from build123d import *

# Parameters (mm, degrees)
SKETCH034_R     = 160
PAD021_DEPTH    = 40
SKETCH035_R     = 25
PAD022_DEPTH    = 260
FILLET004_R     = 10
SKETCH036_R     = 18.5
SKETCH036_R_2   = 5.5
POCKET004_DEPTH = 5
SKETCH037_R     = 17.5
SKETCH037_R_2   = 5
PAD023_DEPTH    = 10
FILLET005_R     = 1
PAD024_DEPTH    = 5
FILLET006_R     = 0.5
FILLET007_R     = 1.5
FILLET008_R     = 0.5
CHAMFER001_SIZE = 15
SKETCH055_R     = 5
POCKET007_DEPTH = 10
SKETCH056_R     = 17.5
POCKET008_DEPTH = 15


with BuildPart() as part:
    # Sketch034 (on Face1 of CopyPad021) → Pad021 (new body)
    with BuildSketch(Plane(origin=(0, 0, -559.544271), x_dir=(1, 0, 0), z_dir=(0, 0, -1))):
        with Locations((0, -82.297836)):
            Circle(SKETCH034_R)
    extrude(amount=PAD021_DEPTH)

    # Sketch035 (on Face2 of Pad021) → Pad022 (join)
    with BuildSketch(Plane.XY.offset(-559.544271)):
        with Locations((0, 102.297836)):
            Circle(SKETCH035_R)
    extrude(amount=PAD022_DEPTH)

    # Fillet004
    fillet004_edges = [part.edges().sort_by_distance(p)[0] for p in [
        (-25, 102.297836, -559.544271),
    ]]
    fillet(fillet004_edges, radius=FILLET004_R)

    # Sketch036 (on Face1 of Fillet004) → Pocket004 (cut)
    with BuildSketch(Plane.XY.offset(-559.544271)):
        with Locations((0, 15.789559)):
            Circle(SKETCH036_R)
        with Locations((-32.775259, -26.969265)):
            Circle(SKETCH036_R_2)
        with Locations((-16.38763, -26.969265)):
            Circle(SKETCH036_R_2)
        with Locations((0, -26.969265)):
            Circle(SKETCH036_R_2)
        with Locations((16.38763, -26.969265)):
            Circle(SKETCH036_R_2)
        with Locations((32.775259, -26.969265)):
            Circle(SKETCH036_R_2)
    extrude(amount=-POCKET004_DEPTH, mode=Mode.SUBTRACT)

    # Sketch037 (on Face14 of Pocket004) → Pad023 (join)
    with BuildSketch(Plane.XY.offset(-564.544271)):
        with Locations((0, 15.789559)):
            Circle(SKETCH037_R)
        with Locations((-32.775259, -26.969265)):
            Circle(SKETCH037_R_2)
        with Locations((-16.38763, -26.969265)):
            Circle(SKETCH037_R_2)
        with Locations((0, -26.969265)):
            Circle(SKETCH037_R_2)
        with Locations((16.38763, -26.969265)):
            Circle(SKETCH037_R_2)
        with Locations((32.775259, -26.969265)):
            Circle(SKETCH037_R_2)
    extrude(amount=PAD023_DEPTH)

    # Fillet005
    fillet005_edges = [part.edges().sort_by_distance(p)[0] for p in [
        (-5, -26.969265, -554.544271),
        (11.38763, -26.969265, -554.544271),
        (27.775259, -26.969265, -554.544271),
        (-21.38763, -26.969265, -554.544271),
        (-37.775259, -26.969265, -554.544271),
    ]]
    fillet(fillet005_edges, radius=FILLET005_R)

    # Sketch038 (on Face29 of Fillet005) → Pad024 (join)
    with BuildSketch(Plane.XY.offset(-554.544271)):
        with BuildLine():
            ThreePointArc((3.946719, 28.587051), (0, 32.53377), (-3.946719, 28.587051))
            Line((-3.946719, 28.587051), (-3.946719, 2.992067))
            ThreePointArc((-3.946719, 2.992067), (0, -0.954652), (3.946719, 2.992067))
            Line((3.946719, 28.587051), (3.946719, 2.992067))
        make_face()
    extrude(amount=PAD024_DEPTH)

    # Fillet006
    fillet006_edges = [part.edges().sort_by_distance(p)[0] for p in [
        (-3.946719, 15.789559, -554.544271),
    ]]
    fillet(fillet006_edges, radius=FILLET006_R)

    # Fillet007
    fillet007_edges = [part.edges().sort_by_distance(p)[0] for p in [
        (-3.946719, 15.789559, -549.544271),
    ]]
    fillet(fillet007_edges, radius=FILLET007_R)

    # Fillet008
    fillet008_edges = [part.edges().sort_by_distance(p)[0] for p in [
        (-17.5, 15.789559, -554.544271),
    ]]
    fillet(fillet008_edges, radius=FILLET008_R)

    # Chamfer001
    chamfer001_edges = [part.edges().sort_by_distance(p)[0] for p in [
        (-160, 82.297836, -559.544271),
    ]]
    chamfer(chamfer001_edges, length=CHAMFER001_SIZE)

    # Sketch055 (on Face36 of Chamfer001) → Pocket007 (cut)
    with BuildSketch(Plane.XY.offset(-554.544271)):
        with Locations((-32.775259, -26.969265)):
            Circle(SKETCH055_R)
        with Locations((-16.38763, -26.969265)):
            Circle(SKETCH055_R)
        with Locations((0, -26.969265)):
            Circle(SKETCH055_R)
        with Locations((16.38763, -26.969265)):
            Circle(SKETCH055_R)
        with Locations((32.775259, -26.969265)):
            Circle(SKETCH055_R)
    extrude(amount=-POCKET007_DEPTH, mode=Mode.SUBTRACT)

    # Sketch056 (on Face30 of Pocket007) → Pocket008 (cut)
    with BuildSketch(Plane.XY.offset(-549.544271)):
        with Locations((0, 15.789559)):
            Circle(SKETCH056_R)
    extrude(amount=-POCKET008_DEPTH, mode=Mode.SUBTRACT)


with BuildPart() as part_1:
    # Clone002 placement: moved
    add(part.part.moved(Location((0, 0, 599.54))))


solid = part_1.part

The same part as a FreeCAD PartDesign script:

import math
import FreeCAD as App
import Part
import Sketcher


def edges_at(feature, points):
    """Names of the edges that pass closest to the given points."""
    edges = feature.Shape.Edges
    near = lambda p: min(range(len(edges)), key=lambda i: edges[i].distToShape(Part.Vertex(*p))[0])
    return sorted({f"Edge{near(p) + 1}" for p in points})

doc = App.newDocument("Part")
params = doc.addObject("Spreadsheet::Sheet", "Params")
for row, (alias, value) in enumerate([
    ("sketch1_diameter", "320 mm"),
    ("pad1_length", "40 mm"),
    ("sketch2_diameter", "50 mm"),
    ("pad2_length", "260 mm"),
    ("fillet_radius", "10 mm"),
    ("sketch3_diameter", "37 mm"),
    ("sketch3_diameter2", "11 mm"),
    ("pocket1_length", "5 mm"),
    ("sketch4_diameter", "35 mm"),
    ("sketch4_diameter2", "10 mm"),
    ("pad3_length", "10 mm"),
    ("fillet2_radius", "1 mm"),
    ("pad4_length", "5 mm"),
    ("fillet3_radius", "0.5 mm"),
    ("fillet4_radius", "1.5 mm"),
    ("fillet5_radius", "0.5 mm"),
    ("chamfer_size", "15 mm"),
    ("sketch6_diameter", "10 mm"),
    ("pocket2_length", "10 mm"),
    ("sketch7_diameter", "35 mm"),
    ("pocket3_length", "15 mm"),
], start=1):
    params.set(f"A{row}", alias)
    params.set(f"B{row}", "=" + value)
    params.setAlias(f"B{row}", alias)

body = doc.addObject("PartDesign::Body", "Body")

# Sketch on XY plane
sketch1 = body.newObject("Sketcher::SketchObject", "Sketch")
sketch1.AttachmentSupport = (doc.getObject("XY_Plane"), [""])
sketch1.MapMode = "FlatFace"
sketch1.AttachmentOffset = App.Placement(App.Vector(0, 0, -559.544271), App.Rotation())
sketch1.addGeometry(Part.Circle(App.Vector(0, 82, 0), App.Vector(0, 0, 1), 160), False)
sketch1.addConstraint([
    Sketcher.Constraint("PointOnObject", 0, 3, -2),
    Sketcher.Constraint("Diameter", 0, 320.0),
    Sketcher.Constraint("DistanceY", -1, 1, 0, 3, 82.297836),
])
sketch1.setExpression("Constraints[1]", "Params.sketch1_diameter")
pad1 = body.newObject("PartDesign::Pad", "Pad")
pad1.Profile = sketch1
pad1.setExpression("Length", "Params.pad1_length")
pad1.Reversed = True

# Sketch on XY plane
sketch2 = body.newObject("Sketcher::SketchObject", "Sketch001")
sketch2.AttachmentSupport = (doc.getObject("XY_Plane"), [""])
sketch2.MapMode = "FlatFace"
sketch2.AttachmentOffset = App.Placement(App.Vector(0, 0, -559.544271), App.Rotation())
sketch2.addGeometry(Part.Circle(App.Vector(0, 102, 0), App.Vector(0, 0, 1), 25), False)
sketch2.addConstraint([
    Sketcher.Constraint("PointOnObject", 0, 3, -2),
    Sketcher.Constraint("Diameter", 0, 50.0),
    Sketcher.Constraint("DistanceY", -1, 1, 0, 3, 102.297836),
])
sketch2.setExpression("Constraints[1]", "Params.sketch2_diameter")
pad2 = body.newObject("PartDesign::Pad", "Pad001")
pad2.Profile = sketch2
pad2.setExpression("Length", "Params.pad2_length")
doc.recompute()

fillet = body.newObject("PartDesign::Fillet", "Fillet")
fillet.Base = (pad2, edges_at(pad2, [(-25, 102.298, -559.544)]))
fillet.setExpression("Radius", "Params.fillet_radius")

# Sketch on XY plane
sketch3 = body.newObject("Sketcher::SketchObject", "Sketch002")
sketch3.AttachmentSupport = (doc.getObject("XY_Plane"), [""])
sketch3.MapMode = "FlatFace"
sketch3.AttachmentOffset = App.Placement(App.Vector(0, 0, -559.544271), App.Rotation())
sketch3.addGeometry([
    Part.Circle(App.Vector(0, 16, 0), App.Vector(0, 0, 1), 18),  # 0
    Part.Circle(App.Vector(-33, -27, 0), App.Vector(0, 0, 1), 6),  # 1
    Part.Circle(App.Vector(-16, -27, 0), App.Vector(0, 0, 1), 6),  # 2
    Part.Circle(App.Vector(0, -27, 0), App.Vector(0, 0, 1), 6),  # 3
    Part.Circle(App.Vector(16, -27, 0), App.Vector(0, 0, 1), 6),  # 4
    Part.Circle(App.Vector(33, -27, 0), App.Vector(0, 0, 1), 6),  # 5
], False)
sketch3.addConstraint([
    Sketcher.Constraint("Equal", 1, 2),
    Sketcher.Constraint("Equal", 2, 3),
    Sketcher.Constraint("Equal", 3, 4),
    Sketcher.Constraint("Equal", 4, 5),
    Sketcher.Constraint("Symmetric", 2, 3, 4, 3, -2),
    Sketcher.Constraint("Symmetric", 1, 3, 5, 3, -2),
    Sketcher.Constraint("PointOnObject", 0, 3, -2),
    Sketcher.Constraint("PointOnObject", 3, 3, -2),
    Sketcher.Constraint("Horizontal", 1, 3, 2, 3),
    Sketcher.Constraint("Horizontal", 2, 3, 3, 3),
    Sketcher.Constraint("Diameter", 0, 37.0),
    Sketcher.Constraint("Diameter", 1, 11.0),
    Sketcher.Constraint("DistanceY", -1, 1, 0, 3, 15.789559),
    Sketcher.Constraint("DistanceX", 1, 3, -1, 1, 32.775259),
    Sketcher.Constraint("DistanceX", 2, 3, -1, 1, 16.38763),
    Sketcher.Constraint("DistanceY", 1, 3, -1, 1, 26.969265),
])
sketch3.setExpression("Constraints[10]", "Params.sketch3_diameter")
sketch3.setExpression("Constraints[11]", "Params.sketch3_diameter2")
pocket1 = body.newObject("PartDesign::Pocket", "Pocket")
pocket1.Profile = sketch3
pocket1.setExpression("Length", "Params.pocket1_length")

# Sketch on XY plane
sketch4 = body.newObject("Sketcher::SketchObject", "Sketch003")
sketch4.AttachmentSupport = (doc.getObject("XY_Plane"), [""])
sketch4.MapMode = "FlatFace"
sketch4.AttachmentOffset = App.Placement(App.Vector(0, 0, -564.544271), App.Rotation())
sketch4.addGeometry([
    Part.Circle(App.Vector(0, 16, 0), App.Vector(0, 0, 1), 18),  # 0
    Part.Circle(App.Vector(-33, -27, 0), App.Vector(0, 0, 1), 5),  # 1
    Part.Circle(App.Vector(-16, -27, 0), App.Vector(0, 0, 1), 5),  # 2
    Part.Circle(App.Vector(0, -27, 0), App.Vector(0, 0, 1), 5),  # 3
    Part.Circle(App.Vector(16, -27, 0), App.Vector(0, 0, 1), 5),  # 4
    Part.Circle(App.Vector(33, -27, 0), App.Vector(0, 0, 1), 5),  # 5
], False)
sketch4.addConstraint([
    Sketcher.Constraint("Equal", 1, 2),
    Sketcher.Constraint("Equal", 2, 3),
    Sketcher.Constraint("Equal", 3, 4),
    Sketcher.Constraint("Equal", 4, 5),
    Sketcher.Constraint("Symmetric", 2, 3, 4, 3, -2),
    Sketcher.Constraint("Symmetric", 1, 3, 5, 3, -2),
    Sketcher.Constraint("PointOnObject", 0, 3, -2),
    Sketcher.Constraint("PointOnObject", 3, 3, -2),
    Sketcher.Constraint("Horizontal", 1, 3, 2, 3),
    Sketcher.Constraint("Horizontal", 2, 3, 3, 3),
    Sketcher.Constraint("Diameter", 0, 35.0),
    Sketcher.Constraint("Diameter", 1, 10.0),
    Sketcher.Constraint("DistanceY", -1, 1, 0, 3, 15.789559),
    Sketcher.Constraint("DistanceX", 1, 3, -1, 1, 32.775259),
    Sketcher.Constraint("DistanceX", 2, 3, -1, 1, 16.38763),
    Sketcher.Constraint("DistanceY", 1, 3, -1, 1, 26.969265),
])
sketch4.setExpression("Constraints[10]", "Params.sketch4_diameter")
sketch4.setExpression("Constraints[11]", "Params.sketch4_diameter2")
pad3 = body.newObject("PartDesign::Pad", "Pad002")
pad3.Profile = sketch4
pad3.setExpression("Length", "Params.pad3_length")
doc.recompute()

fillet2 = body.newObject("PartDesign::Fillet", "Fillet001")
fillet2.Base = (pad3, edges_at(pad3, [
    (-5, -26.969, -554.544),
    (11.388, -26.969, -554.544),
    (27.775, -26.969, -554.544),
    (-21.388, -26.969, -554.544),
    (-37.775, -26.969, -554.544),
]))
fillet2.setExpression("Radius", "Params.fillet2_radius")

# Sketch on XY plane
sketch5 = body.newObject("Sketcher::SketchObject", "Sketch004")
sketch5.AttachmentSupport = (doc.getObject("XY_Plane"), [""])
sketch5.MapMode = "FlatFace"
sketch5.AttachmentOffset = App.Placement(App.Vector(0, 0, -554.544271), App.Rotation())
sketch5.addGeometry([
    Part.ArcOfCircle(Part.Circle(App.Vector(0, 28.6, 0), App.Vector(0, 0, 1), 3.9), math.radians(0), math.radians(180)),
    Part.LineSegment(App.Vector(-3.9, 28.6, 0), App.Vector(-3.9, 3, 0)),
    Part.ArcOfCircle(Part.Circle(App.Vector(0, 3, 0), App.Vector(0, 0, 1), 3.9), math.radians(180), math.radians(360)),
    Part.LineSegment(App.Vector(3.9, 3, 0), App.Vector(3.9, 28.6, 0)),
], False)
sketch5.addConstraint([
    Sketcher.Constraint("Tangent", 0, 2, 1, 1),
    Sketcher.Constraint("Tangent", 1, 2, 2, 1),
    Sketcher.Constraint("Tangent", 2, 2, 3, 1),
    Sketcher.Constraint("Tangent", 3, 2, 0, 1),
    Sketcher.Constraint("Vertical", 1),
    Sketcher.Constraint("Vertical", 3),
    Sketcher.Constraint("PointOnObject", 0, 3, -2),
    Sketcher.Constraint("Radius", 0, 3.946719),
    Sketcher.Constraint("DistanceY", 1, 2, 1, 1, 25.594984),
    Sketcher.Constraint("DistanceY", -1, 1, 0, 3, 28.587051),
])
pad4 = body.newObject("PartDesign::Pad", "Pad003")
pad4.Profile = sketch5
pad4.setExpression("Length", "Params.pad4_length")
doc.recompute()

fillet3 = body.newObject("PartDesign::Fillet", "Fillet002")
fillet3.Base = (pad4, edges_at(pad4, [(-3.947, 15.79, -554.544)]))
fillet3.setExpression("Radius", "Params.fillet3_radius")
doc.recompute()

fillet4 = body.newObject("PartDesign::Fillet", "Fillet003")
fillet4.Base = (fillet3, edges_at(fillet3, [(-3.947, 15.79, -549.544)]))
fillet4.setExpression("Radius", "Params.fillet4_radius")
doc.recompute()

fillet5 = body.newObject("PartDesign::Fillet", "Fillet004")
fillet5.Base = (fillet4, edges_at(fillet4, [(-17.5, 15.79, -554.544)]))
fillet5.setExpression("Radius", "Params.fillet5_radius")
doc.recompute()

chamfer = body.newObject("PartDesign::Chamfer", "Chamfer")
chamfer.Base = (fillet5, edges_at(fillet5, [(-160, 82.298, -559.544)]))
chamfer.setExpression("Size", "Params.chamfer_size")

# Sketch on XY plane
sketch6 = body.newObject("Sketcher::SketchObject", "Sketch005")
sketch6.AttachmentSupport = (doc.getObject("XY_Plane"), [""])
sketch6.MapMode = "FlatFace"
sketch6.AttachmentOffset = App.Placement(App.Vector(0, 0, -554.544271), App.Rotation())
sketch6.addGeometry([
    Part.Circle(App.Vector(-33, -27, 0), App.Vector(0, 0, 1), 5),  # 0
    Part.Circle(App.Vector(-16, -27, 0), App.Vector(0, 0, 1), 5),  # 1
    Part.Circle(App.Vector(0, -27, 0), App.Vector(0, 0, 1), 5),  # 2
    Part.Circle(App.Vector(16, -27, 0), App.Vector(0, 0, 1), 5),  # 3
    Part.Circle(App.Vector(33, -27, 0), App.Vector(0, 0, 1), 5),  # 4
], False)
sketch6.addConstraint([
    Sketcher.Constraint("Equal", 0, 1),
    Sketcher.Constraint("Equal", 1, 2),
    Sketcher.Constraint("Equal", 2, 3),
    Sketcher.Constraint("Equal", 3, 4),
    Sketcher.Constraint("Symmetric", 1, 3, 3, 3, -2),
    Sketcher.Constraint("Symmetric", 0, 3, 4, 3, -2),
    Sketcher.Constraint("PointOnObject", 2, 3, -2),
    Sketcher.Constraint("Horizontal", 0, 3, 1, 3),
    Sketcher.Constraint("Horizontal", 1, 3, 2, 3),
    Sketcher.Constraint("Diameter", 0, 10.0),
    Sketcher.Constraint("DistanceX", 0, 3, -1, 1, 32.775259),
    Sketcher.Constraint("DistanceX", 1, 3, -1, 1, 16.38763),
    Sketcher.Constraint("DistanceY", 0, 3, -1, 1, 26.969265),
])
sketch6.setExpression("Constraints[9]", "Params.sketch6_diameter")
pocket2 = body.newObject("PartDesign::Pocket", "Pocket001")
pocket2.Profile = sketch6
pocket2.setExpression("Length", "Params.pocket2_length")

# Sketch on XY plane
sketch7 = body.newObject("Sketcher::SketchObject", "Sketch006")
sketch7.AttachmentSupport = (doc.getObject("XY_Plane"), [""])
sketch7.MapMode = "FlatFace"
sketch7.AttachmentOffset = App.Placement(App.Vector(0, 0, -549.544271), App.Rotation())
sketch7.addGeometry(Part.Circle(App.Vector(0, 16, 0), App.Vector(0, 0, 1), 18), False)
sketch7.addConstraint([
    Sketcher.Constraint("PointOnObject", 0, 3, -2),
    Sketcher.Constraint("Diameter", 0, 35.0),
    Sketcher.Constraint("DistanceY", -1, 1, 0, 3, 15.789559),
])
sketch7.setExpression("Constraints[1]", "Params.sketch7_diameter")
pocket3 = body.newObject("PartDesign::Pocket", "Pocket002")
pocket3.Profile = sketch7
pocket3.setExpression("Length", "Params.pocket3_length")
body2 = doc.addObject("PartDesign::Body", "Body001")
doc.recompute()

body.Placement = App.Placement(App.Vector(0, 0, 599.54), App.Rotation(App.Vector(0, 0, 1), 0))
boolean = body2.newObject("PartDesign::Boolean", "Boolean")
boolean.Type = "Fuse"
boolean.addObjects([body])

doc.recompute()
